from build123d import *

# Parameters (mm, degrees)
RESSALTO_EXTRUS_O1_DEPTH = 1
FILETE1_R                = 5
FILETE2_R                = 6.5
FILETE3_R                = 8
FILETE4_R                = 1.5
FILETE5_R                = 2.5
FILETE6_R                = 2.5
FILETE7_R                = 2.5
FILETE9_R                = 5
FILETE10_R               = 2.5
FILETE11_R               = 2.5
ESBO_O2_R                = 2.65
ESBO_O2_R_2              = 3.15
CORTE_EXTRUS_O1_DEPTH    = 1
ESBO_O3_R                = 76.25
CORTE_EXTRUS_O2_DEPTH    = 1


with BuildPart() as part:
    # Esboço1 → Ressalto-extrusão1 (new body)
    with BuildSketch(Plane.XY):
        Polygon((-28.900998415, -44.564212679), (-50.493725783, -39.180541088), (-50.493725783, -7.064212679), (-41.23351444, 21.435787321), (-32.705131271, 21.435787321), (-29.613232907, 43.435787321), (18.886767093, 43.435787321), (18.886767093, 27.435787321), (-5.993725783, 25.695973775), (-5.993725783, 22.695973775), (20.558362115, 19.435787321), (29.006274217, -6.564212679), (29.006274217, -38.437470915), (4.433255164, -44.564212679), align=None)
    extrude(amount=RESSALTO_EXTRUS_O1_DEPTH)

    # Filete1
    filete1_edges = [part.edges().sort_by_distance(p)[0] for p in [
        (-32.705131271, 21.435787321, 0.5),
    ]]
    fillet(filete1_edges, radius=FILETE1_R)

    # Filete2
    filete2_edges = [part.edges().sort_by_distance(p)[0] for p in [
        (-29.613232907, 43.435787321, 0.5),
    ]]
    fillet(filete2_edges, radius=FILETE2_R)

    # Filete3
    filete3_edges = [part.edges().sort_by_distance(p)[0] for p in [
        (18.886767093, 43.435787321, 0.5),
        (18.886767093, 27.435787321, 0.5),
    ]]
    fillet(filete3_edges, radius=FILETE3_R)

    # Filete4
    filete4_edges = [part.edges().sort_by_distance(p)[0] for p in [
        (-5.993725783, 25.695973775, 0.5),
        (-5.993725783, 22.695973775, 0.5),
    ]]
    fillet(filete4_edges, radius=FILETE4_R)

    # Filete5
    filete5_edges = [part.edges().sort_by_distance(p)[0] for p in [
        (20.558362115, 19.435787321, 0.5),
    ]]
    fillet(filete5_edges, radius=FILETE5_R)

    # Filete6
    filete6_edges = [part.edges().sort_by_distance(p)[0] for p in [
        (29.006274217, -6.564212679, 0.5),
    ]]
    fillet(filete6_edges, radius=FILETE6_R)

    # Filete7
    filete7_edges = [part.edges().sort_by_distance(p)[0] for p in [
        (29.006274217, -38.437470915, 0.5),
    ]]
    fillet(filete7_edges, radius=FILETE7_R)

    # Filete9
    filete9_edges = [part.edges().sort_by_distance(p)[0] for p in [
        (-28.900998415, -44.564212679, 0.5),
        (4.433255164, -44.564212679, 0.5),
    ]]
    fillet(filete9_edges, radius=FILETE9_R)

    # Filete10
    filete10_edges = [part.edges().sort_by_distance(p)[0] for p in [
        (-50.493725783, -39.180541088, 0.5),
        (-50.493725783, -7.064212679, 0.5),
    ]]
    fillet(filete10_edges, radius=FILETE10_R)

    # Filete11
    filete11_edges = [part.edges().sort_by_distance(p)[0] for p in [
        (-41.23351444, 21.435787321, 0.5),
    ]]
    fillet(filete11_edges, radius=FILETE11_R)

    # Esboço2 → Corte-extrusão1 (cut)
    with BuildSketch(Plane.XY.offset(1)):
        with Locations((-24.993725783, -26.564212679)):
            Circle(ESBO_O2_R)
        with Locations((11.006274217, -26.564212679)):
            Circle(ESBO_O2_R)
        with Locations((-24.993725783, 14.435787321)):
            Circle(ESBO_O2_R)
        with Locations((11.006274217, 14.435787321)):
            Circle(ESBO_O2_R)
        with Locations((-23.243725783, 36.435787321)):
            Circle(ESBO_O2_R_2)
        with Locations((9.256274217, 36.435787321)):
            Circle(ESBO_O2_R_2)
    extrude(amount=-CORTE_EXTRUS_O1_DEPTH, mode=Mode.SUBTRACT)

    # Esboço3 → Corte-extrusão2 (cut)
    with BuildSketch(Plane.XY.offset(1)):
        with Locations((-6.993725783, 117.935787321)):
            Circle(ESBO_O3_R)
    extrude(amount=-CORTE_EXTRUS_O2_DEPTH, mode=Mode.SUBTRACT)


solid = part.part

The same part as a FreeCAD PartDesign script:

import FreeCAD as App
import Part
import Sketcher

V = App.Vector
Q = App.Units.Quantity


def edges_at(feature, points):
    """Names of the edges that pass closest to the given points."""
    edges = feature.Shape.Edges
    near = lambda p: min(range(len(edges)), key=lambda i: edges[i].distToShape(Part.Vertex(*p))[0])
    return sorted({f"Edge{near(p) + 1}" for p in points})


def add_polygon(sketch, points):
    """Adds a closed chain of lines whose ends are joined by coincident constraints."""
    first, n = sketch.GeometryCount, len(points)
    for a, b in zip(points, points[1:] + points[:1]):
        sketch.addGeometry(Part.LineSegment(App.Vector(*a, 0), App.Vector(*b, 0)), False)
    for i in range(n):
        sketch.addConstraint(Sketcher.Constraint("Coincident", first + i, 2, first + (i + 1) % n, 1))

doc = App.newDocument("Part")
params = doc.addObject("Spreadsheet::Sheet", "Params")
for row, (alias, value) in enumerate([
    ("sketch1_height", "3 mm"),
    ("sketch1_height2", "16 mm"),
    ("sketch1_width", "48.5 mm"),
    ("pad1_length", "1 mm"),
    ("fillet_radius", "5 mm"),
    ("fillet2_radius", "6.5 mm"),
    ("fillet3_radius", "8 mm"),
    ("fillet4_radius", "1.5 mm"),
    ("fillet5_radius", "2.5 mm"),
    ("fillet6_radius", "2.5 mm"),
    ("fillet7_radius", "2.5 mm"),
    ("fillet8_radius", "5 mm"),
    ("fillet9_radius", "2.5 mm"),
    ("fillet10_radius", "2.5 mm"),
    ("sketch2_diameter", "5.3 mm"),
    ("sketch2_diameter2", "6.3 mm"),
    ("pocket1_length", "1 mm"),
    ("sketch3_diameter", "152.5 mm"),
    ("pocket2_length", "1 mm"),
], start=1):
    params.set(f"A{row}", alias)
    params.set(f"B{row}", "=" + value)
    params.setAlias(f"B{row}", alias)

body = doc.addObject("PartDesign::Body", "Body")

# Sketch on XY plane
sketch1 = body.newObject("Sketcher::SketchObject", "Sketch")
sketch1.AttachmentSupport = (doc.getObject("XY_Plane"), [""])
sketch1.MapMode = "FlatFace"
add_polygon(sketch1, [(-50.5, -39.2), (-28.9, -44.6), (4.4, -44.6), (29, -38.4), (29, -6.6), (20.6, 19.4), (-6, 22.7), (-6, 25.7), (18.9, 27.4), (18.9, 43.4), (-29.6, 43.4), (-32.7, 21.4), (-41.2, 21.4), (-50.5, -7.1)])  # lines 0-13
sketch1.addConstraint([
    Sketcher.Constraint("Horizontal", 1),
    Sketcher.Constraint("Vertical", 3),
    Sketcher.Constraint("Vertical", 6),
    Sketcher.Constraint("Vertical", 8),
    Sketcher.Constraint("Horizontal", 9),
    Sketcher.Constraint("Horizontal", 11),
    Sketcher.Constraint("Vertical", 13),
    Sketcher.Constraint("DistanceY", 6, 1, 6, 2, Q("3 mm")),
    Sketcher.Constraint("DistanceY", 8, 1, 8, 2, Q("16 mm")),
    Sketcher.Constraint("Angle", 0, Q("-14 deg")),
    Sketcher.Constraint("Angle", 2, Q("14 deg")),
    Sketcher.Constraint("Angle", 4, Q("108 deg")),
    Sketcher.Constraint("Angle", 5, Q("173 deg")),
    Sketcher.Constraint("Angle", 7, Q("4 deg")),
    Sketcher.Constraint("Angle", 10, Q("-98 deg")),
    Sketcher.Constraint("Angle", 12, Q("-108 deg")),
    Sketcher.Constraint("DistanceX", 9, 2, 9, 1, Q("48.5 mm")),
    Sketcher.Constraint("DistanceY", 1, 2, 3, 2, Q("38 mm")),
    Sketcher.Constraint("DistanceY", 3, 2, 4, 2, Q("26 mm")),
    Sketcher.Constraint("DistanceX", 5, 2, 3, 2, Q("35 mm")),
    Sketcher.Constraint("DistanceY", 4, 2, 7, 2, Q("8 mm")),
    Sketcher.Constraint("DistanceY", 10, 2, 9, 2, Q("22 mm")),
    Sketcher.Constraint("DistanceY", 12, 2, 11, 2, Q("28.5 mm")),
    Sketcher.Constraint("DistanceX", 12, 2, 5, 2, Q("44.5 mm")),
    Sketcher.Constraint("DistanceX", 0, 2, -1, 1, Q("28.900998 mm")),
    Sketcher.Constraint("DistanceY", 3, 1, 3, 2, Q("31.873258 mm")),
    Sketcher.Constraint("DistanceY", 13, 2, 13, 1, Q("32.116328 mm")),
    Sketcher.Constraint("DistanceY", 2, 2, -1, 1, Q("38.437471 mm")),
])
sketch1.setExpression("Constraints[21]", "Params.sketch1_height")
sketch1.setExpression("Constraints[22]", "Params.sketch1_height2")
sketch1.setExpression("Constraints[30]", "Params.sketch1_width")
pad1 = body.newObject("PartDesign::Pad", "Pad")
pad1.Profile = sketch1
pad1.setExpression("Length", "Params.pad1_length")
doc.recompute()

fillet = body.newObject("PartDesign::Fillet", "Fillet")
fillet.Base = (pad1, edges_at(pad1, [(-32.705, 21.436, 0.5)]))
fillet.setExpression("Radius", "Params.fillet_radius")
doc.recompute()

fillet2 = body.newObject("PartDesign::Fillet", "Fillet001")
fillet2.Base = (fillet, edges_at(fillet, [(-29.613, 43.436, 0.5)]))
fillet2.setExpression("Radius", "Params.fillet2_radius")
doc.recompute()

fillet3 = body.newObject("PartDesign::Fillet", "Fillet002")
fillet3.Base = (fillet2, edges_at(fillet2, [(18.887, 43.436, 0.5), (18.887, 27.436, 0.5)]))
fillet3.setExpression("Radius", "Params.fillet3_radius")
doc.recompute()

fillet4 = body.newObject("PartDesign::Fillet", "Fillet003")
fillet4.Base = (fillet3, edges_at(fillet3, [(-5.994, 25.696, 0.5), (-5.994, 22.696, 0.5)]))
fillet4.setExpression("Radius", "Params.fillet4_radius")
doc.recompute()

fillet5 = body.newObject("PartDesign::Fillet", "Fillet004")
fillet5.Base = (fillet4, edges_at(fillet4, [(20.558, 19.436, 0.5)]))
fillet5.setExpression("Radius", "Params.fillet5_radius")
doc.recompute()

fillet6 = body.newObject("PartDesign::Fillet", "Fillet005")
fillet6.Base = (fillet5, edges_at(fillet5, [(29.006, -6.564, 0.5)]))
fillet6.setExpression("Radius", "Params.fillet6_radius")
doc.recompute()

fillet7 = body.newObject("PartDesign::Fillet", "Fillet006")
fillet7.Base = (fillet6, edges_at(fillet6, [(29.006, -38.437, 0.5)]))
fillet7.setExpression("Radius", "Params.fillet7_radius")
doc.recompute()

fillet8 = body.newObject("PartDesign::Fillet", "Fillet007")
fillet8.Base = (fillet7, edges_at(fillet7, [(-28.901, -44.564, 0.5), (4.433, -44.564, 0.5)]))
fillet8.setExpression("Radius", "Params.fillet8_radius")
doc.recompute()

fillet9 = body.newObject("PartDesign::Fillet", "Fillet008")
fillet9.Base = (fillet8, edges_at(fillet8, [(-50.494, -39.181, 0.5), (-50.494, -7.064, 0.5)]))
fillet9.setExpression("Radius", "Params.fillet9_radius")
doc.recompute()

fillet10 = body.newObject("PartDesign::Fillet", "Fillet009")
fillet10.Base = (fillet9, edges_at(fillet9, [(-41.234, 21.436, 0.5)]))
fillet10.setExpression("Radius", "Params.fillet10_radius")

# Sketch on XY plane
sketch2 = body.newObject("Sketcher::SketchObject", "Sketch001")
sketch2.AttachmentSupport = (doc.getObject("XY_Plane"), [""])
sketch2.MapMode = "FlatFace"
sketch2.AttachmentOffset = App.Placement(V(0, 0, 1), App.Rotation())
sketch2.addGeometry([
    Part.Circle(V(-25, -26.6, 0), V(0, 0, 1), 2.6),  # 0
    Part.Circle(V(11, -26.6, 0), V(0, 0, 1), 2.6),  # 1
    Part.Circle(V(-25, 14.4, 0), V(0, 0, 1), 2.6),  # 2
    Part.Circle(V(11, 14.4, 0), V(0, 0, 1), 2.6),  # 3
    Part.Circle(V(-23.2, 36.4, 0), V(0, 0, 1), 3.1),  # 4
    Part.Circle(V(9.3, 36.4, 0), V(0, 0, 1), 3.1),  # 5
], False)
sketch2.addConstraint([
    Sketcher.Constraint("Equal", 0, 1),
    Sketcher.Constraint("Equal", 1, 2),
    Sketcher.Constraint("Equal", 2, 3),
    Sketcher.Constraint("Equal", 4, 5),
    Sketcher.Constraint("Horizontal", 0, 3, 1, 3),
    Sketcher.Constraint("Horizontal", 2, 3, 3, 3),
    Sketcher.Constraint("Horizontal", 4, 3, 5, 3),
    Sketcher.Constraint("Vertical", 0, 3, 2, 3),
    Sketcher.Constraint("Vertical", 1, 3, 3, 3),
    Sketcher.Constraint("Diameter", 0, Q("5.3 mm")),
    Sketcher.Constraint("Diameter", 4, Q("6.3 mm")),
    Sketcher.Constraint("DistanceX", 0, 3, 1, 3, Q("36 mm")),
    Sketcher.Constraint("DistanceY", 0, 3, 2, 3, Q("41 mm")),
    Sketcher.Constraint("DistanceY", 2, 3, 4, 3, Q("22 mm")),
    Sketcher.Constraint("DistanceX", 4, 3, 5, 3, Q("32.5 mm")),
    Sketcher.Constraint("DistanceX", 2, 3, 4, 3, Q("1.75 mm")),
    Sketcher.Constraint("DistanceX", 0, 3, -1, 1, Q("24.993726 mm")),
    Sketcher.Constraint("DistanceY", 0, 3, -1, 1, Q("26.564213 mm")),
])
sketch2.setExpression("Constraints[9]", "Params.sketch2_diameter")
sketch2.setExpression("Constraints[10]", "Params.sketch2_diameter2")
pocket1 = body.newObject("PartDesign::Pocket", "Pocket")
pocket1.Profile = sketch2
pocket1.setExpression("Length", "Params.pocket1_length")

# Sketch on XY plane
sketch3 = body.newObject("Sketcher::SketchObject", "Sketch002")
sketch3.AttachmentSupport = (doc.getObject("XY_Plane"), [""])
sketch3.MapMode = "FlatFace"
sketch3.AttachmentOffset = App.Placement(V(0, 0, 1), App.Rotation())
sketch3.addGeometry(Part.Circle(V(-7, 118, 0), V(0, 0, 1), 76), False)
sketch3.addConstraint([
    Sketcher.Constraint("Diameter", 0, Q("152.5 mm")),
    Sketcher.Constraint("DistanceX", 0, 3, -1, 1, Q("6.993726 mm")),
    Sketcher.Constraint("DistanceY", -1, 1, 0, 3, Q("117.935787 mm")),
])
sketch3.setExpression("Constraints[0]", "Params.sketch3_diameter")
pocket2 = body.newObject("PartDesign::Pocket", "Pocket001")
pocket2.Profile = sketch3
pocket2.setExpression("Length", "Params.pocket2_length")

doc.recompute()
